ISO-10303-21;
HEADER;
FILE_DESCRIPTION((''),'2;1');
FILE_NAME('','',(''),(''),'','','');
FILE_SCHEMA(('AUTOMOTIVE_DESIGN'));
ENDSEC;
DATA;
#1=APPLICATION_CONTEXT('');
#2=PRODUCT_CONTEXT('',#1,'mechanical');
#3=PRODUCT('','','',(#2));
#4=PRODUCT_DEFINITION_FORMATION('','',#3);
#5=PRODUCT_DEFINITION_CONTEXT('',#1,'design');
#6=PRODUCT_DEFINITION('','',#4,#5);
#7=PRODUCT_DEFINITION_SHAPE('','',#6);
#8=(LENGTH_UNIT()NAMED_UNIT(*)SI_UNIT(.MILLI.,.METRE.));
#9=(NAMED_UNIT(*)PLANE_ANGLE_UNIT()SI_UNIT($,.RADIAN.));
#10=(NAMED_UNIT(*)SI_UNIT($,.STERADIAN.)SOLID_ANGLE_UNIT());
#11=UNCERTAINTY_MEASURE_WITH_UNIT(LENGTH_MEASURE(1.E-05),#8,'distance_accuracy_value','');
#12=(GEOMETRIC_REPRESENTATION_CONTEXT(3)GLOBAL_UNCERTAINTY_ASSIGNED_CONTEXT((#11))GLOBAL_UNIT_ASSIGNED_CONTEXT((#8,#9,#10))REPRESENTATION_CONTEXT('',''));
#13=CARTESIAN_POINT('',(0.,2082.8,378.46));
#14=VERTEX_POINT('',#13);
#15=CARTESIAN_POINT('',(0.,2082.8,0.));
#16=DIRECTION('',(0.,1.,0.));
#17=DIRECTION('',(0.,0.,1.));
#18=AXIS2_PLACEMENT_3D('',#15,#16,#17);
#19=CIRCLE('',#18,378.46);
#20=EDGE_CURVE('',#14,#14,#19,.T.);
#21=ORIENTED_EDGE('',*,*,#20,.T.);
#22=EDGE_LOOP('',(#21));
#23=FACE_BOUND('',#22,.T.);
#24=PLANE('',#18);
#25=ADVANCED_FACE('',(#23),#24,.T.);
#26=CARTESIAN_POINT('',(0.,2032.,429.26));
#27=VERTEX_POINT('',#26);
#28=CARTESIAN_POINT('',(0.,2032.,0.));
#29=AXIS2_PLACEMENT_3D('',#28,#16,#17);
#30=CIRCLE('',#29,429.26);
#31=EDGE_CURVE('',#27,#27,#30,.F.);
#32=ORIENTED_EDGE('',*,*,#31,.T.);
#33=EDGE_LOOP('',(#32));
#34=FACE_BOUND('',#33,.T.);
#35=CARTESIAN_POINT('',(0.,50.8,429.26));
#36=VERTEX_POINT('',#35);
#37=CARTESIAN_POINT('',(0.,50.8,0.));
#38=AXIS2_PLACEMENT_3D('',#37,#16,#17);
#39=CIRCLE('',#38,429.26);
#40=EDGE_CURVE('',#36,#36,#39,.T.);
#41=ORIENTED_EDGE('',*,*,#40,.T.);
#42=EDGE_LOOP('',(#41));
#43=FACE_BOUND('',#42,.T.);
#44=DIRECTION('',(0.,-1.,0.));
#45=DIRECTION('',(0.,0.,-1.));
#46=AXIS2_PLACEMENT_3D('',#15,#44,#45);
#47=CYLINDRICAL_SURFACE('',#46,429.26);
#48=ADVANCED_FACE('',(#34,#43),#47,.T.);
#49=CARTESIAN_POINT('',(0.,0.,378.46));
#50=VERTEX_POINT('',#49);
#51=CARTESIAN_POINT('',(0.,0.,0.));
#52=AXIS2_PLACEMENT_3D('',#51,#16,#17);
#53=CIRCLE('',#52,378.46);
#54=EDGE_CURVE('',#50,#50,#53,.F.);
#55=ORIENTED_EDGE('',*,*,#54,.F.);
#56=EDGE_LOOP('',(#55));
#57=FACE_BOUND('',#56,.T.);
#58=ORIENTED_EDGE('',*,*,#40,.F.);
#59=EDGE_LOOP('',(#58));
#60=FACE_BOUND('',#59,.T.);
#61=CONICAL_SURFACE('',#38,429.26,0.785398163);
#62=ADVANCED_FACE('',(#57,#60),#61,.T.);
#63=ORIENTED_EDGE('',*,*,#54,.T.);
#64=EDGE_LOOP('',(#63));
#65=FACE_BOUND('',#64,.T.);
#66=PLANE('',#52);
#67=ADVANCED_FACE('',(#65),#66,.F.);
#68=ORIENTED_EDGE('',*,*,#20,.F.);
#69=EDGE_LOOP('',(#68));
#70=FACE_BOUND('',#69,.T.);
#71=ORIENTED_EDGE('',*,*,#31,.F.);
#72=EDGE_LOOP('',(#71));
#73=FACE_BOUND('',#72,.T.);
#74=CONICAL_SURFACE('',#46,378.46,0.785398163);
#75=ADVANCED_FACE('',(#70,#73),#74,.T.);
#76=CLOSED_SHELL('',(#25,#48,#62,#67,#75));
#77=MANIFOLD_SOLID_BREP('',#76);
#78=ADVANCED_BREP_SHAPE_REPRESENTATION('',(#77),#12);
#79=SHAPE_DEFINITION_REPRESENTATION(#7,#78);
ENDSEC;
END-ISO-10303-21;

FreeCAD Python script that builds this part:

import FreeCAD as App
import Part
import Sketcher

V = App.Vector
Q = App.Units.Quantity


def edges_at(feature, points):
    """Names of the edges that pass closest to the given points."""
    edges = feature.Shape.Edges
    near = lambda p: min(range(len(edges)), key=lambda i: edges[i].distToShape(Part.Vertex(*p))[0])
    return sorted({f"Edge{near(p) + 1}" for p in points})

doc = App.newDocument("Part")
params = doc.addObject("Spreadsheet::Sheet", "Params")
for row, (alias, value) in enumerate([
    ("sketch1_diameter", "33.8 in"),
    ("pad1_length", "82 in"),
    ("chamfer_size", "2 in"),
], start=1):
    params.set(f"A{row}", alias)
    params.set(f"B{row}", "=" + value)
    params.setAlias(f"B{row}", alias)

body = doc.addObject("PartDesign::Body", "Body")

sketch1 = doc.addObject("Sketcher::SketchObject", "Sketch")
body.addObject(sketch1)
sketch1.AttachmentSupport = (doc.XZ_Plane, [""])
sketch1.MapMode = "FlatFace"
sketch1.addGeometry(Part.Circle(V(0, 0, 0), V(0, 0, 1), 429), False)
sketch1.addConstraint([
    Sketcher.Constraint("Coincident", 0, 3, -1, 1),
    Sketcher.Constraint("Diameter", 0, Q("33.8 in")),
])
sketch1.setExpression("Constraints[1]", "Params.sketch1_diameter")
pad1 = doc.addObject("PartDesign::Pad", "Pad")
body.addObject(pad1)
pad1.Profile = sketch1
pad1.setExpression("Length", "Params.pad1_length")
pad1.Reversed = True
doc.recompute()

chamfer = doc.addObject("PartDesign::Chamfer", "Chamfer")
body.addObject(chamfer)
chamfer.Base = (pad1, edges_at(pad1, [(-429.26, 0, 0), (-429.26, 2082.8, 0)]))
chamfer.setExpression("Size", "Params.chamfer_size")

doc.recompute()
